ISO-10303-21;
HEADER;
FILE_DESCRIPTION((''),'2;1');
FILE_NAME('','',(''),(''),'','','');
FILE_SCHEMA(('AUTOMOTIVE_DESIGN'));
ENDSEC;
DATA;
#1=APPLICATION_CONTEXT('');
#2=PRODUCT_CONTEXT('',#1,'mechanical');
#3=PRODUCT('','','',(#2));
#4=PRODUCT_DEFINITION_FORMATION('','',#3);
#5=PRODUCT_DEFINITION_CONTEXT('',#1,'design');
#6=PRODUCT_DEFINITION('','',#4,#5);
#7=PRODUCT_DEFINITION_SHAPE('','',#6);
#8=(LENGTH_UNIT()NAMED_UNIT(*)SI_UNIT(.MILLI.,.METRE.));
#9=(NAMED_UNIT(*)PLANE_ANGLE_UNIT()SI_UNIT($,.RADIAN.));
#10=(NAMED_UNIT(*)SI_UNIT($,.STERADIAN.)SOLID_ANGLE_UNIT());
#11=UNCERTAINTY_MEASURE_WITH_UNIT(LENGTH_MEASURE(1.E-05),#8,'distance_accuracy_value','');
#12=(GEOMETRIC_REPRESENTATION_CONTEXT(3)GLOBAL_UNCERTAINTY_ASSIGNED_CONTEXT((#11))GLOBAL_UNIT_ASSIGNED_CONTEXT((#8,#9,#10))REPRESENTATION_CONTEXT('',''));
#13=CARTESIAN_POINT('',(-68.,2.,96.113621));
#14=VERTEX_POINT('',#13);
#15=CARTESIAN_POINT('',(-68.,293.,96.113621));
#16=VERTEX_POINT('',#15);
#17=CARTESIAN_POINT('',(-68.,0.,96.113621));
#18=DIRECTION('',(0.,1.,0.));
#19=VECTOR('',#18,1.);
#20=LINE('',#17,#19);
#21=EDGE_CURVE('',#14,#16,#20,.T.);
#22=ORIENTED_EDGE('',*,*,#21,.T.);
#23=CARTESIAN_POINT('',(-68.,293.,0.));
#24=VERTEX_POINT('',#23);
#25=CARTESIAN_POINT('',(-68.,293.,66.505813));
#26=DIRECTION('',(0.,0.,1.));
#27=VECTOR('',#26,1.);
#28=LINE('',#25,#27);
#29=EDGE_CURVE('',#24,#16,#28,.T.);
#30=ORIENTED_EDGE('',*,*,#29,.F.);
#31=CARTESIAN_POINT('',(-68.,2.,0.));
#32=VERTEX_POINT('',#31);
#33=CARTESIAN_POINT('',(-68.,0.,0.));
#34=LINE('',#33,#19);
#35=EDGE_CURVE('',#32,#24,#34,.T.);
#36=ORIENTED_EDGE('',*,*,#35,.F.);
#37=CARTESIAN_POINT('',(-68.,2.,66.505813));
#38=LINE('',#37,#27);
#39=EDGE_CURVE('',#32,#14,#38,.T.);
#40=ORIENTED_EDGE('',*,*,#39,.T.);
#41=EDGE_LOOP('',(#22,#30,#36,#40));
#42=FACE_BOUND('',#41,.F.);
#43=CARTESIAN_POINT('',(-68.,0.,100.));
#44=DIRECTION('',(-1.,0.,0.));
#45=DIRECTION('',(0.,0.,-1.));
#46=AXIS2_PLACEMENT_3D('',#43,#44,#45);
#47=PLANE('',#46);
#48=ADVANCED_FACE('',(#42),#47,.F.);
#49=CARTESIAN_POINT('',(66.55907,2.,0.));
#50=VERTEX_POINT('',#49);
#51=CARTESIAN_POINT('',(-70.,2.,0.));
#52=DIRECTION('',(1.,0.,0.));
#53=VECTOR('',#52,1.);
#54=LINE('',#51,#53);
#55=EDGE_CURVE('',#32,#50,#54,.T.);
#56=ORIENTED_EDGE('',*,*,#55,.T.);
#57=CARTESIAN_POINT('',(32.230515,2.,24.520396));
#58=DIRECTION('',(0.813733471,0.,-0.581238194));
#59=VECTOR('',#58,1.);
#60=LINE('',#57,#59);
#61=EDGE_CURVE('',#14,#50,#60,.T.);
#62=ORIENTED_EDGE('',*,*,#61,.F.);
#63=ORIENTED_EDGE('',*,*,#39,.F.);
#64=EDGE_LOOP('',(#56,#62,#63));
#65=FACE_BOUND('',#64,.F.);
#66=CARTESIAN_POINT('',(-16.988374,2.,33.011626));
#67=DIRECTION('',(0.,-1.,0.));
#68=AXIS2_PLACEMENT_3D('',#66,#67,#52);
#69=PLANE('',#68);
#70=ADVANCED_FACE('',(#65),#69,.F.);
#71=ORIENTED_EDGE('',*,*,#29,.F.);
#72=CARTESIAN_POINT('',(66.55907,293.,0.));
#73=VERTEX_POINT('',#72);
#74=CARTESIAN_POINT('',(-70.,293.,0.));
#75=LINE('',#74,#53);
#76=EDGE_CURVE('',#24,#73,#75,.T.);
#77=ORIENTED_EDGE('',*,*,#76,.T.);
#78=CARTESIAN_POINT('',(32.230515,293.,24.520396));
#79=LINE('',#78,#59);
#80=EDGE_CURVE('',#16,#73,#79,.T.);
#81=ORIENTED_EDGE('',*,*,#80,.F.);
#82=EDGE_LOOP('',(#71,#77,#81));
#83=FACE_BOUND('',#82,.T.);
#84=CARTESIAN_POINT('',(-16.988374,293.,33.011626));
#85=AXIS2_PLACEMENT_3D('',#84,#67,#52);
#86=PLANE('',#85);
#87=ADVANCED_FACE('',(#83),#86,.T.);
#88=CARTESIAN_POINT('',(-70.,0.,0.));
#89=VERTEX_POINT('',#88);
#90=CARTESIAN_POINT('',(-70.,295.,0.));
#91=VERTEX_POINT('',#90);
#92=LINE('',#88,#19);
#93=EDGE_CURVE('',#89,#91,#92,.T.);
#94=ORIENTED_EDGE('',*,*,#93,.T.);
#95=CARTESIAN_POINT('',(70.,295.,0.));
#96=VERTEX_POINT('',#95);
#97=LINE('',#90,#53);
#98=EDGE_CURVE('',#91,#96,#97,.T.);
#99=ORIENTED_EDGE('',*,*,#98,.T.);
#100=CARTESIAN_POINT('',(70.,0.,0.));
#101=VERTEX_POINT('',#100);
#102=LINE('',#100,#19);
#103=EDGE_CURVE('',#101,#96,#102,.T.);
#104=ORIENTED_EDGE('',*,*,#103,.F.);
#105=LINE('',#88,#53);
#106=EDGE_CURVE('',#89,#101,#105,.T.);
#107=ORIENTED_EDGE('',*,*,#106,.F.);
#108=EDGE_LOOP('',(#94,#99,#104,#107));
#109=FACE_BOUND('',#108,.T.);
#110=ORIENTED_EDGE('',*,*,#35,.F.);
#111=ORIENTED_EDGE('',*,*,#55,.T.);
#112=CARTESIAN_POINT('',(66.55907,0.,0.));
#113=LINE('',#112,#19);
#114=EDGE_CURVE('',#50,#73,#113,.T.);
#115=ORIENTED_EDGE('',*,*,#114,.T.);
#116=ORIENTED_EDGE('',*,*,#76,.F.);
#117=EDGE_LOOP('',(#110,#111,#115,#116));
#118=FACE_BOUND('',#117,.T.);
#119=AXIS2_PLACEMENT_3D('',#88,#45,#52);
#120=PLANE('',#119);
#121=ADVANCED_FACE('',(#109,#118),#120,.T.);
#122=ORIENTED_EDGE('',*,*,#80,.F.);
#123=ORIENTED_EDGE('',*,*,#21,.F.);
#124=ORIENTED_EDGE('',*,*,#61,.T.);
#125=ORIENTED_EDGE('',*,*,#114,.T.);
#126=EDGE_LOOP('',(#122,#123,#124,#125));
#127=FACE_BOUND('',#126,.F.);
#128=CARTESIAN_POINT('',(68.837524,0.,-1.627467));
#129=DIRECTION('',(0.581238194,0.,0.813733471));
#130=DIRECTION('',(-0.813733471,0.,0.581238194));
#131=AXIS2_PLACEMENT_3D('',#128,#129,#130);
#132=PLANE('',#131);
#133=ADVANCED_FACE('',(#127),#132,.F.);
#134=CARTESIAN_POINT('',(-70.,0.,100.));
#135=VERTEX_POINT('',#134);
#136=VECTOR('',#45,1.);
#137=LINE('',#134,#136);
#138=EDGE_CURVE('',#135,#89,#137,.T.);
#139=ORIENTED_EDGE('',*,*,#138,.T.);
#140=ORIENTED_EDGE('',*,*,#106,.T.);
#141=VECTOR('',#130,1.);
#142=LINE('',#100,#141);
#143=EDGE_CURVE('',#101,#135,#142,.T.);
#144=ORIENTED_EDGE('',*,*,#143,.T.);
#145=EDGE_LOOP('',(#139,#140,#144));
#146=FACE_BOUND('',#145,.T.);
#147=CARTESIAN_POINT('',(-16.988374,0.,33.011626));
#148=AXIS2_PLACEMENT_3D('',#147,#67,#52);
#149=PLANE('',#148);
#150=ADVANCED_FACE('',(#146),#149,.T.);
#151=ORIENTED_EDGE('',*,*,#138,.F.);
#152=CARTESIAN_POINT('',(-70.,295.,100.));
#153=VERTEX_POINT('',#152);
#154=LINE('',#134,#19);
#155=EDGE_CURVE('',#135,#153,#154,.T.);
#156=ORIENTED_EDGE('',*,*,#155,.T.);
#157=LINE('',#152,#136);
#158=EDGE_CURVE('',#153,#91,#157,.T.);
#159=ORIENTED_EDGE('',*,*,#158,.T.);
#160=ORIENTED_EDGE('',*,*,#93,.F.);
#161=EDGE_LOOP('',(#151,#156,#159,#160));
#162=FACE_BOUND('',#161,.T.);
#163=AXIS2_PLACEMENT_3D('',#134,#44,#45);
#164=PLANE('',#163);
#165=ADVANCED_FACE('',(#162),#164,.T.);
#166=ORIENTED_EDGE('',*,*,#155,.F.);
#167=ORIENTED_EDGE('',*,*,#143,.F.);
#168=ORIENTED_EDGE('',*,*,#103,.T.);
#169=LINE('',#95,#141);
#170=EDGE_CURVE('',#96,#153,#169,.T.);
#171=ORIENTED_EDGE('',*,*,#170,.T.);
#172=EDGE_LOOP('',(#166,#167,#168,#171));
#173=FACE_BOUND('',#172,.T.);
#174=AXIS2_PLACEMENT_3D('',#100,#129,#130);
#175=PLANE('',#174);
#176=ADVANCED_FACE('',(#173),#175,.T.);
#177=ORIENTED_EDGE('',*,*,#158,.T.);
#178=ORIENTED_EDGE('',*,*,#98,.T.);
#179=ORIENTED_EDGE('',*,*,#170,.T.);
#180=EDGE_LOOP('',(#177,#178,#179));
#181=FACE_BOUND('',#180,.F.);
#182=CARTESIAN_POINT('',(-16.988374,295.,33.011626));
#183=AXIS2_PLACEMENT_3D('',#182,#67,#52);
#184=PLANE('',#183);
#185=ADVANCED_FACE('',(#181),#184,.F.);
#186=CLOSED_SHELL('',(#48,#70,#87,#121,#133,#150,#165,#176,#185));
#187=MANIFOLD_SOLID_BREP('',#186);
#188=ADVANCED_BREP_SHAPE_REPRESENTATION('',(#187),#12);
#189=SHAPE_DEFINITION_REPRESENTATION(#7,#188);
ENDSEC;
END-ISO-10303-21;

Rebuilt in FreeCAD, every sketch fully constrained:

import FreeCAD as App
import Part
import Sketcher
from FreeCAD import Vector
Q = App.Units.Quantity


def faces_at(feature, points):
    """Names of the faces that lie closest to the given points."""
    faces = feature.Shape.Faces
    near = lambda p: min(range(len(faces)), key=lambda i: faces[i].distToShape(Part.Vertex(*p))[0])
    return sorted({f"Face{near(p) + 1}" for p in points})

doc = App.newDocument("Part")
body = doc.addObject("PartDesign::Body", "Body")

# Sketch on XZ plane
sketch1 = body.newObject("Sketcher::SketchObject", "Sketch")
sketch1.AttachmentSupport = (doc.getObject("XZ_Plane"), [""])
sketch1.MapMode = "FlatFace"
sketch1.addGeometry(Part.LineSegment(Vector(-70, 100, 0), Vector(-70, 0, 0)), False)
sketch1.addGeometry(Part.LineSegment(Vector(-70, 0, 0), Vector(70, 0, 0)), False)
sketch1.addGeometry(Part.LineSegment(Vector(70, 0, 0), Vector(-70, 100, 0)), False)
sketch1.addConstraint(Sketcher.Constraint("Coincident", 0, 2, 1, 1))
sketch1.addConstraint(Sketcher.Constraint("Coincident", 1, 2, 2, 1))
sketch1.addConstraint(Sketcher.Constraint("Coincident", 2, 2, 0, 1))
sketch1.addConstraint(Sketcher.Constraint("Vertical", 0))
sketch1.addConstraint(Sketcher.Constraint("Horizontal", 1))
sketch1.addConstraint(Sketcher.Constraint("Symmetric", 0, 2, 1, 2, -1, 1))
sketch1.addConstraint(Sketcher.Constraint("DistanceX", 1, 1, 1, 2, Q("140 mm")))
sketch1.addConstraint(Sketcher.Constraint("DistanceY", 0, 2, 0, 1, Q("100 mm")))
pad1 = body.newObject("PartDesign::Pad", "Pad")
pad1.Profile = sketch1
pad1.Length = 295
pad1.Reversed = True
doc.recompute()

thickness = body.newObject("PartDesign::Thickness", "Thickness")
thickness.Base = (pad1, faces_at(pad1, [(0, 147.5, 0)]))
thickness.Value = 2
thickness.Reversed = True
thickness.Join = "Arc"

doc.recompute()
